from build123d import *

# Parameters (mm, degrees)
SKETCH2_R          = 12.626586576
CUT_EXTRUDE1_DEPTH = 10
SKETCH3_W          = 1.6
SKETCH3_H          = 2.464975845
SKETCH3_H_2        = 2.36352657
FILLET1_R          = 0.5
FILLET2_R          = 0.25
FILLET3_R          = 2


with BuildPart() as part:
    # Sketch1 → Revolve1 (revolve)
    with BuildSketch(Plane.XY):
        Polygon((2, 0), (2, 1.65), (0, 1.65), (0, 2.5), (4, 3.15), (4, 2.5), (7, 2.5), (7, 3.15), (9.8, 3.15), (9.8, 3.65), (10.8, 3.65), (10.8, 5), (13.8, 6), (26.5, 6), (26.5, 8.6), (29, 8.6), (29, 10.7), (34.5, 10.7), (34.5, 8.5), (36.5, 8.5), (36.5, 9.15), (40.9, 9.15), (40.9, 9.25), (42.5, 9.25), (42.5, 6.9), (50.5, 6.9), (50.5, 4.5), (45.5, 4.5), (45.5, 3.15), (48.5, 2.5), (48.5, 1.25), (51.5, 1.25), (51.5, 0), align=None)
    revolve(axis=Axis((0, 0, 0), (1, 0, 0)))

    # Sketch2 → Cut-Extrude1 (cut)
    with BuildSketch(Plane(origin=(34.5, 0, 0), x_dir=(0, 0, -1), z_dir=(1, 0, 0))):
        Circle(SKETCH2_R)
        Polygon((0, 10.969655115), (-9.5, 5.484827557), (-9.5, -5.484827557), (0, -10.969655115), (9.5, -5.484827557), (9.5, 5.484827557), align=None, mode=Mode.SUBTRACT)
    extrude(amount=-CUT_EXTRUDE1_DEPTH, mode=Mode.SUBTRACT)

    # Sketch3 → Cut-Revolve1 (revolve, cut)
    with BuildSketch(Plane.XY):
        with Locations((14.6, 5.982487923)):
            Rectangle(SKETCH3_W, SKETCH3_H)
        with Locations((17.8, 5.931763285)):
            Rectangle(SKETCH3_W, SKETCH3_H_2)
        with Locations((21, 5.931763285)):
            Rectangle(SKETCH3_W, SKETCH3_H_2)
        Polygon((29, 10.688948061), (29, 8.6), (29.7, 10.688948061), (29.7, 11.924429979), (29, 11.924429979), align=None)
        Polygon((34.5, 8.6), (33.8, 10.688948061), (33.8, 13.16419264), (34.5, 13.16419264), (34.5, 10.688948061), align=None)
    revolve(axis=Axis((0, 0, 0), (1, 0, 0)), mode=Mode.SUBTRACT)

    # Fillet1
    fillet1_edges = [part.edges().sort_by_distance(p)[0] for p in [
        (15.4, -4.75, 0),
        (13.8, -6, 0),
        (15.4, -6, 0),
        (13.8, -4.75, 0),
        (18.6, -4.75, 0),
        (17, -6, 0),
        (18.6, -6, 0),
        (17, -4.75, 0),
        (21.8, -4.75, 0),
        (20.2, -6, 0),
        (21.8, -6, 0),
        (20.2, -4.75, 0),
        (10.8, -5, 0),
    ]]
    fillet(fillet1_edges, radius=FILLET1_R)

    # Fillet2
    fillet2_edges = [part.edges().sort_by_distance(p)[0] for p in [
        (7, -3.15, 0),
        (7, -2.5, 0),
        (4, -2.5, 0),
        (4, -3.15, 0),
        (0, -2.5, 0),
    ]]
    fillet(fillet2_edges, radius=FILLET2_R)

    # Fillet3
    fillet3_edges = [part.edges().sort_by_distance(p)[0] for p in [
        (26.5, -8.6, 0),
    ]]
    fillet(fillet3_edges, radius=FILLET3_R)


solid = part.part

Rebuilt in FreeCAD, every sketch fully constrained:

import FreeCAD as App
import Part
import Sketcher
Q = App.Units.Quantity


def edges_at(feature, points):
    """Names of the edges that pass closest to the given points."""
    edges = feature.Shape.Edges
    near = lambda p: min(range(len(edges)), key=lambda i: edges[i].distToShape(Part.Vertex(*p))[0])
    return sorted({f"Edge{near(p) + 1}" for p in points})


def add_polygon(sketch, points):
    """Adds a closed chain of lines whose ends are joined by coincident constraints."""
    first, n = sketch.GeometryCount, len(points)
    for a, b in zip(points, points[1:] + points[:1]):
        sketch.addGeometry(Part.LineSegment(App.Vector(*a, 0), App.Vector(*b, 0)), False)
    for i in range(n):
        sketch.addConstraint(Sketcher.Constraint("Coincident", first + i, 2, first + (i + 1) % n, 1))

doc = App.newDocument("Part")
body = doc.addObject("PartDesign::Body", "Body")

# Sketch on XY plane
sketch1 = doc.addObject("Sketcher::SketchObject", "Sketch")
body.addObject(sketch1)
sketch1.AttachmentSupport = (doc.XY_Plane, [""])
sketch1.MapMode = "FlatFace"
add_polygon(sketch1, [(2, 1.65), (2, 0), (51.5, 0), (51.5, 1.25), (48.5, 1.25), (48.5, 2.5), (45.5, 3.15), (45.5, 4.5), (50.5, 4.5), (50.5, 6.9), (42.5, 6.9), (42.5, 9.25), (40.9, 9.25), (40.9, 9.15), (36.5, 9.15), (36.5, 8.5), (34.5, 8.5), (34.5, 10.7), (29, 10.7), (29, 8.6), (26.5, 8.6), (26.5, 6), (13.8, 6), (10.8, 5), (10.8, 3.65), (9.8, 3.65), (9.8, 3.15), (7, 3.15), (7, 2.5), (4, 2.5), (4, 3.15), (0, 2.5), (0, 1.65)])  # lines 0-32
sketch1.addConstraint([
    Sketcher.Constraint("Vertical", 0),
    Sketcher.Constraint("Horizontal", 1),
    Sketcher.Constraint("Vertical", 2),
    Sketcher.Constraint("Horizontal", 3),
    Sketcher.Constraint("Vertical", 4),
    Sketcher.Constraint("Vertical", 6),
    Sketcher.Constraint("Horizontal", 7),
    Sketcher.Constraint("Vertical", 8),
    Sketcher.Constraint("Horizontal", 9),
    Sketcher.Constraint("Vertical", 10),
    Sketcher.Constraint("Horizontal", 11),
    Sketcher.Constraint("Vertical", 12),
    Sketcher.Constraint("Horizontal", 13),
    Sketcher.Constraint("Vertical", 14),
    Sketcher.Constraint("Horizontal", 15),
    Sketcher.Constraint("Vertical", 16),
    Sketcher.Constraint("Horizontal", 17),
    Sketcher.Constraint("Vertical", 18),
    Sketcher.Constraint("Horizontal", 19),
    Sketcher.Constraint("Vertical", 20),
    Sketcher.Constraint("Horizontal", 21),
    Sketcher.Constraint("Vertical", 23),
    Sketcher.Constraint("Horizontal", 24),
    Sketcher.Constraint("Vertical", 25),
    Sketcher.Constraint("Horizontal", 26),
    Sketcher.Constraint("Vertical", 27),
    Sketcher.Constraint("Horizontal", 28),
    Sketcher.Constraint("Vertical", 29),
    Sketcher.Constraint("Vertical", 31),
    Sketcher.Constraint("Horizontal", 32),
    Sketcher.Constraint("PointOnObject", 0, 2, -1),
    Sketcher.Constraint("PointOnObject", 30, 2, -2),
    Sketcher.Constraint("Horizontal", 5, 2, 25, 2),
    Sketcher.Constraint("Horizontal", 4, 2, 27, 2),
    Sketcher.Constraint("Horizontal", 26, 2, 29, 2),
    Sketcher.Constraint("Horizontal", 28, 2, 30, 2),
    Sketcher.Constraint("Equal", 3, 28),
    Sketcher.Constraint("Equal", 15, 32),
    Sketcher.Constraint("Equal", 2, 4),
    Sketcher.Constraint("Equal", 6, 23),
    Sketcher.Constraint("Equal", 14, 27),
    Sketcher.Constraint("DistanceX", 3, 2, 3, 1, Q("3 mm")),
    Sketcher.Constraint("DistanceX", 7, 1, 7, 2, Q("5 mm")),
    Sketcher.Constraint("DistanceX", 9, 2, 9, 1, Q("8 mm")),
    Sketcher.Constraint("DistanceX", 15, 2, 15, 1, Q("2 mm")),
    Sketcher.Constraint("DistanceX", 24, 2, 24, 1, Q("1 mm")),
    Sketcher.Constraint("DistanceX", 1, 1, 1, 2, Q("49.5 mm")),
    Sketcher.Constraint("DistanceX", 11, 2, 11, 1, Q("1.6 mm")),
    Sketcher.Constraint("DistanceX", 13, 2, 13, 1, Q("4.4 mm")),
    Sketcher.Constraint("DistanceX", 17, 2, 17, 1, Q("5.5 mm")),
    Sketcher.Constraint("DistanceX", 19, 2, 19, 1, Q("2.5 mm")),
    Sketcher.Constraint("DistanceX", 21, 2, 21, 1, Q("12.7 mm")),
    Sketcher.Constraint("DistanceX", 26, 2, 26, 1, Q("2.8 mm")),
    Sketcher.Constraint("DistanceY", 8, 1, 8, 2, Q("2.4 mm")),
    Sketcher.Constraint("DistanceY", 12, 2, 12, 1, Q("0.1 mm")),
    Sketcher.Constraint("DistanceY", 16, 1, 16, 2, Q("2.2 mm")),
    Sketcher.Constraint("DistanceY", 18, 2, 18, 1, Q("2.1 mm")),
    Sketcher.Constraint("DistanceY", 20, 2, 20, 1, Q("2.6 mm")),
    Sketcher.Constraint("DistanceY", 25, 2, 25, 1, Q("0.5 mm")),
    Sketcher.Constraint("DistanceX", -1, 1, 17, 2, Q("29 mm")),
    Sketcher.Constraint("DistanceY", -1, 1, 20, 2, Q("6 mm")),
    Sketcher.Constraint("DistanceY", -1, 1, 22, 2, Q("5 mm")),
    Sketcher.Constraint("DistanceX", -1, 1, 26, 2, Q("7 mm")),
    Sketcher.Constraint("DistanceY", 4, 2, 6, 2, Q("2 mm")),
    Sketcher.Constraint("DistanceY", 0, 2, 0, 1, Q("1.65 mm")),
    Sketcher.Constraint("DistanceY", 6, 1, 6, 2, Q("1.35 mm")),
])
revolution = doc.addObject("PartDesign::Revolution", "Revolution")
body.addObject(revolution)
revolution.Profile = sketch1
revolution.ReferenceAxis = (sketch1, ["H_Axis"])
revolution.Angle = 360

# Sketch on YZ plane
sketch2 = doc.addObject("Sketcher::SketchObject", "Sketch001")
body.addObject(sketch2)
sketch2.AttachmentSupport = (doc.YZ_Plane, [""])
sketch2.MapMode = "FlatFace"
sketch2.AttachmentOffset = App.Placement(App.Vector(0, 0, 34.5), App.Rotation())
sketch2.addGeometry(Part.Circle(App.Vector(0, 0, 0), App.Vector(0, 0, 1), 12.626587), False)  # 0
add_polygon(sketch2, [(5.484828, 9.5), (10.969655, 0), (5.484828, -9.5), (-5.484828, -9.5), (-10.969655, 0), (-5.484828, 9.5)])  # lines 1-6
sketch2.addConstraint([
    Sketcher.Constraint("Horizontal", 3),
    Sketcher.Constraint("Horizontal", 6),
    Sketcher.Constraint("Coincident", 0, 3, -1, 1),
    Sketcher.Constraint("Symmetric", 1, 2, 4, 2, -1, 1),
    Sketcher.Constraint("Symmetric", 2, 2, 5, 2, -1, 1),
    Sketcher.Constraint("PointOnObject", 1, 2, -1),
    Sketcher.Constraint("Parallel", 1, 4),
    Sketcher.Constraint("Vertical", 3, 2, 5, 2),
    Sketcher.Constraint("Angle", 1, Q("-60 deg")),
    Sketcher.Constraint("DistanceY", 3, 2, 5, 2, Q("19 mm")),
    Sketcher.Constraint("Diameter", 0, Q("25.253173 mm")),
    Sketcher.Constraint("DistanceX", 3, 2, 3, 1, Q("10.969655 mm")),
])
pocket1 = doc.addObject("PartDesign::Pocket", "Pocket")
body.addObject(pocket1)
pocket1.Profile = sketch2
pocket1.Length = 10

# Sketch on XY plane
sketch3 = doc.addObject("Sketcher::SketchObject", "Sketch002")
body.addObject(sketch3)
sketch3.AttachmentSupport = (doc.XY_Plane, [""])
sketch3.MapMode = "FlatFace"
add_polygon(sketch3, [(13.8, 7.214976), (13.8, 4.75), (15.4, 4.75), (15.4, 7.214976)])  # lines 0-3
add_polygon(sketch3, [(17, 7.113527), (17, 4.75), (18.6, 4.75), (18.6, 7.113527)])  # lines 4-7
add_polygon(sketch3, [(20.2, 7.113527), (20.2, 4.75), (21.8, 4.75), (21.8, 7.113527)])  # lines 8-11
add_polygon(sketch3, [(29, 8.6), (29.7, 10.688948), (29.7, 11.92443), (29, 11.92443)])  # lines 12-15
add_polygon(sketch3, [(33.8, 10.688948), (34.5, 8.6), (34.5, 13.164193), (33.8, 13.164193)])  # lines 16-19
sketch3.addConstraint([
    Sketcher.Constraint("Vertical", 0),
    Sketcher.Constraint("Horizontal", 1),
    Sketcher.Constraint("Vertical", 2),
    Sketcher.Constraint("Horizontal", 3),
    Sketcher.Constraint("Vertical", 4),
    Sketcher.Constraint("Horizontal", 5),
    Sketcher.Constraint("Vertical", 6),
    Sketcher.Constraint("Horizontal", 7),
    Sketcher.Constraint("Vertical", 8),
    Sketcher.Constraint("Horizontal", 9),
    Sketcher.Constraint("Vertical", 10),
    Sketcher.Constraint("Horizontal", 11),
    Sketcher.Constraint("Vertical", 13),
    Sketcher.Constraint("Horizontal", 14),
    Sketcher.Constraint("Vertical", 15),
    Sketcher.Constraint("Vertical", 17),
    Sketcher.Constraint("Horizontal", 18),
    Sketcher.Constraint("Vertical", 19),
    Sketcher.Constraint("Horizontal", 1, 2, 4, 2),
    Sketcher.Constraint("Horizontal", 5, 2, 8, 2),
    Sketcher.Constraint("Horizontal", 7, 2, 10, 2),
    Sketcher.Constraint("Horizontal", 15, 2, 16, 2),
    Sketcher.Constraint("Horizontal", 12, 2, 19, 2),
    Sketcher.Constraint("Equal", 3, 5),
    Sketcher.Constraint("Equal", 7, 9),
    Sketcher.Constraint("Equal", 14, 18),
    Sketcher.Constraint("DistanceX", 1, 1, 1, 2, Q("1.6 mm")),
    Sketcher.Constraint("DistanceX", 14, 2, 14, 1, Q("0.7 mm")),
    Sketcher.Constraint("DistanceX", -1, 1, 4, 2, Q("17 mm")),
    Sketcher.Constraint("DistanceX", -1, 1, 14, 2, Q("29 mm")),
    Sketcher.Constraint("DistanceX", -1, 1, 0, 2, Q("13.8 mm")),
    Sketcher.Constraint("DistanceX", -1, 1, 8, 2, Q("20.2 mm")),
    Sketcher.Constraint("DistanceY", -1, 1, 15, 2, Q("8.6 mm")),
    Sketcher.Constraint("DistanceX", -1, 1, 16, 2, Q("34.5 mm")),
    Sketcher.Constraint("DistanceY", -1, 1, 0, 2, Q("4.75 mm")),
    Sketcher.Constraint("DistanceY", 13, 1, 13, 2, Q("1.235482 mm")),
    Sketcher.Constraint("DistanceY", 15, 2, 15, 1, Q("3.32443 mm")),
    Sketcher.Constraint("DistanceY", 0, 2, 0, 1, Q("2.464976 mm")),
    Sketcher.Constraint("DistanceY", 4, 2, 4, 1, Q("2.363527 mm")),
    Sketcher.Constraint("DistanceY", 17, 1, 17, 2, Q("4.564193 mm")),
])
groove = doc.addObject("PartDesign::Groove", "Groove")
body.addObject(groove)
groove.Profile = sketch3
groove.ReferenceAxis = (sketch3, ["H_Axis"])
groove.Angle = 360
doc.recompute()

fillet = doc.addObject("PartDesign::Fillet", "Fillet")
body.addObject(fillet)
fillet.Base = (groove, edges_at(groove, [
    (15.4, -4.75, 0),
    (13.8, -6, 0),
    (15.4, -6, 0),
    (13.8, -4.75, 0),
    (18.6, -4.75, 0),
    (17, -6, 0),
    (18.6, -6, 0),
    (17, -4.75, 0),
    (21.8, -4.75, 0),
    (20.2, -6, 0),
    (21.8, -6, 0),
    (20.2, -4.75, 0),
    (10.8, -5, 0),
]))
fillet.Radius = 0.5
doc.recompute()

fillet2 = doc.addObject("PartDesign::Fillet", "Fillet001")
body.addObject(fillet2)
fillet2.Base = (fillet, edges_at(fillet, [
    (7, -3.15, 0),
    (7, -2.5, 0),
    (4, -2.5, 0),
    (4, -3.15, 0),
    (0, -2.5, 0),
]))
fillet2.Radius = 0.25
doc.recompute()

fillet3 = doc.addObject("PartDesign::Fillet", "Fillet002")
body.addObject(fillet3)
fillet3.Base = (fillet2, edges_at(fillet2, [(26.5, -8.6, 0)]))
fillet3.Radius = 2

doc.recompute()
